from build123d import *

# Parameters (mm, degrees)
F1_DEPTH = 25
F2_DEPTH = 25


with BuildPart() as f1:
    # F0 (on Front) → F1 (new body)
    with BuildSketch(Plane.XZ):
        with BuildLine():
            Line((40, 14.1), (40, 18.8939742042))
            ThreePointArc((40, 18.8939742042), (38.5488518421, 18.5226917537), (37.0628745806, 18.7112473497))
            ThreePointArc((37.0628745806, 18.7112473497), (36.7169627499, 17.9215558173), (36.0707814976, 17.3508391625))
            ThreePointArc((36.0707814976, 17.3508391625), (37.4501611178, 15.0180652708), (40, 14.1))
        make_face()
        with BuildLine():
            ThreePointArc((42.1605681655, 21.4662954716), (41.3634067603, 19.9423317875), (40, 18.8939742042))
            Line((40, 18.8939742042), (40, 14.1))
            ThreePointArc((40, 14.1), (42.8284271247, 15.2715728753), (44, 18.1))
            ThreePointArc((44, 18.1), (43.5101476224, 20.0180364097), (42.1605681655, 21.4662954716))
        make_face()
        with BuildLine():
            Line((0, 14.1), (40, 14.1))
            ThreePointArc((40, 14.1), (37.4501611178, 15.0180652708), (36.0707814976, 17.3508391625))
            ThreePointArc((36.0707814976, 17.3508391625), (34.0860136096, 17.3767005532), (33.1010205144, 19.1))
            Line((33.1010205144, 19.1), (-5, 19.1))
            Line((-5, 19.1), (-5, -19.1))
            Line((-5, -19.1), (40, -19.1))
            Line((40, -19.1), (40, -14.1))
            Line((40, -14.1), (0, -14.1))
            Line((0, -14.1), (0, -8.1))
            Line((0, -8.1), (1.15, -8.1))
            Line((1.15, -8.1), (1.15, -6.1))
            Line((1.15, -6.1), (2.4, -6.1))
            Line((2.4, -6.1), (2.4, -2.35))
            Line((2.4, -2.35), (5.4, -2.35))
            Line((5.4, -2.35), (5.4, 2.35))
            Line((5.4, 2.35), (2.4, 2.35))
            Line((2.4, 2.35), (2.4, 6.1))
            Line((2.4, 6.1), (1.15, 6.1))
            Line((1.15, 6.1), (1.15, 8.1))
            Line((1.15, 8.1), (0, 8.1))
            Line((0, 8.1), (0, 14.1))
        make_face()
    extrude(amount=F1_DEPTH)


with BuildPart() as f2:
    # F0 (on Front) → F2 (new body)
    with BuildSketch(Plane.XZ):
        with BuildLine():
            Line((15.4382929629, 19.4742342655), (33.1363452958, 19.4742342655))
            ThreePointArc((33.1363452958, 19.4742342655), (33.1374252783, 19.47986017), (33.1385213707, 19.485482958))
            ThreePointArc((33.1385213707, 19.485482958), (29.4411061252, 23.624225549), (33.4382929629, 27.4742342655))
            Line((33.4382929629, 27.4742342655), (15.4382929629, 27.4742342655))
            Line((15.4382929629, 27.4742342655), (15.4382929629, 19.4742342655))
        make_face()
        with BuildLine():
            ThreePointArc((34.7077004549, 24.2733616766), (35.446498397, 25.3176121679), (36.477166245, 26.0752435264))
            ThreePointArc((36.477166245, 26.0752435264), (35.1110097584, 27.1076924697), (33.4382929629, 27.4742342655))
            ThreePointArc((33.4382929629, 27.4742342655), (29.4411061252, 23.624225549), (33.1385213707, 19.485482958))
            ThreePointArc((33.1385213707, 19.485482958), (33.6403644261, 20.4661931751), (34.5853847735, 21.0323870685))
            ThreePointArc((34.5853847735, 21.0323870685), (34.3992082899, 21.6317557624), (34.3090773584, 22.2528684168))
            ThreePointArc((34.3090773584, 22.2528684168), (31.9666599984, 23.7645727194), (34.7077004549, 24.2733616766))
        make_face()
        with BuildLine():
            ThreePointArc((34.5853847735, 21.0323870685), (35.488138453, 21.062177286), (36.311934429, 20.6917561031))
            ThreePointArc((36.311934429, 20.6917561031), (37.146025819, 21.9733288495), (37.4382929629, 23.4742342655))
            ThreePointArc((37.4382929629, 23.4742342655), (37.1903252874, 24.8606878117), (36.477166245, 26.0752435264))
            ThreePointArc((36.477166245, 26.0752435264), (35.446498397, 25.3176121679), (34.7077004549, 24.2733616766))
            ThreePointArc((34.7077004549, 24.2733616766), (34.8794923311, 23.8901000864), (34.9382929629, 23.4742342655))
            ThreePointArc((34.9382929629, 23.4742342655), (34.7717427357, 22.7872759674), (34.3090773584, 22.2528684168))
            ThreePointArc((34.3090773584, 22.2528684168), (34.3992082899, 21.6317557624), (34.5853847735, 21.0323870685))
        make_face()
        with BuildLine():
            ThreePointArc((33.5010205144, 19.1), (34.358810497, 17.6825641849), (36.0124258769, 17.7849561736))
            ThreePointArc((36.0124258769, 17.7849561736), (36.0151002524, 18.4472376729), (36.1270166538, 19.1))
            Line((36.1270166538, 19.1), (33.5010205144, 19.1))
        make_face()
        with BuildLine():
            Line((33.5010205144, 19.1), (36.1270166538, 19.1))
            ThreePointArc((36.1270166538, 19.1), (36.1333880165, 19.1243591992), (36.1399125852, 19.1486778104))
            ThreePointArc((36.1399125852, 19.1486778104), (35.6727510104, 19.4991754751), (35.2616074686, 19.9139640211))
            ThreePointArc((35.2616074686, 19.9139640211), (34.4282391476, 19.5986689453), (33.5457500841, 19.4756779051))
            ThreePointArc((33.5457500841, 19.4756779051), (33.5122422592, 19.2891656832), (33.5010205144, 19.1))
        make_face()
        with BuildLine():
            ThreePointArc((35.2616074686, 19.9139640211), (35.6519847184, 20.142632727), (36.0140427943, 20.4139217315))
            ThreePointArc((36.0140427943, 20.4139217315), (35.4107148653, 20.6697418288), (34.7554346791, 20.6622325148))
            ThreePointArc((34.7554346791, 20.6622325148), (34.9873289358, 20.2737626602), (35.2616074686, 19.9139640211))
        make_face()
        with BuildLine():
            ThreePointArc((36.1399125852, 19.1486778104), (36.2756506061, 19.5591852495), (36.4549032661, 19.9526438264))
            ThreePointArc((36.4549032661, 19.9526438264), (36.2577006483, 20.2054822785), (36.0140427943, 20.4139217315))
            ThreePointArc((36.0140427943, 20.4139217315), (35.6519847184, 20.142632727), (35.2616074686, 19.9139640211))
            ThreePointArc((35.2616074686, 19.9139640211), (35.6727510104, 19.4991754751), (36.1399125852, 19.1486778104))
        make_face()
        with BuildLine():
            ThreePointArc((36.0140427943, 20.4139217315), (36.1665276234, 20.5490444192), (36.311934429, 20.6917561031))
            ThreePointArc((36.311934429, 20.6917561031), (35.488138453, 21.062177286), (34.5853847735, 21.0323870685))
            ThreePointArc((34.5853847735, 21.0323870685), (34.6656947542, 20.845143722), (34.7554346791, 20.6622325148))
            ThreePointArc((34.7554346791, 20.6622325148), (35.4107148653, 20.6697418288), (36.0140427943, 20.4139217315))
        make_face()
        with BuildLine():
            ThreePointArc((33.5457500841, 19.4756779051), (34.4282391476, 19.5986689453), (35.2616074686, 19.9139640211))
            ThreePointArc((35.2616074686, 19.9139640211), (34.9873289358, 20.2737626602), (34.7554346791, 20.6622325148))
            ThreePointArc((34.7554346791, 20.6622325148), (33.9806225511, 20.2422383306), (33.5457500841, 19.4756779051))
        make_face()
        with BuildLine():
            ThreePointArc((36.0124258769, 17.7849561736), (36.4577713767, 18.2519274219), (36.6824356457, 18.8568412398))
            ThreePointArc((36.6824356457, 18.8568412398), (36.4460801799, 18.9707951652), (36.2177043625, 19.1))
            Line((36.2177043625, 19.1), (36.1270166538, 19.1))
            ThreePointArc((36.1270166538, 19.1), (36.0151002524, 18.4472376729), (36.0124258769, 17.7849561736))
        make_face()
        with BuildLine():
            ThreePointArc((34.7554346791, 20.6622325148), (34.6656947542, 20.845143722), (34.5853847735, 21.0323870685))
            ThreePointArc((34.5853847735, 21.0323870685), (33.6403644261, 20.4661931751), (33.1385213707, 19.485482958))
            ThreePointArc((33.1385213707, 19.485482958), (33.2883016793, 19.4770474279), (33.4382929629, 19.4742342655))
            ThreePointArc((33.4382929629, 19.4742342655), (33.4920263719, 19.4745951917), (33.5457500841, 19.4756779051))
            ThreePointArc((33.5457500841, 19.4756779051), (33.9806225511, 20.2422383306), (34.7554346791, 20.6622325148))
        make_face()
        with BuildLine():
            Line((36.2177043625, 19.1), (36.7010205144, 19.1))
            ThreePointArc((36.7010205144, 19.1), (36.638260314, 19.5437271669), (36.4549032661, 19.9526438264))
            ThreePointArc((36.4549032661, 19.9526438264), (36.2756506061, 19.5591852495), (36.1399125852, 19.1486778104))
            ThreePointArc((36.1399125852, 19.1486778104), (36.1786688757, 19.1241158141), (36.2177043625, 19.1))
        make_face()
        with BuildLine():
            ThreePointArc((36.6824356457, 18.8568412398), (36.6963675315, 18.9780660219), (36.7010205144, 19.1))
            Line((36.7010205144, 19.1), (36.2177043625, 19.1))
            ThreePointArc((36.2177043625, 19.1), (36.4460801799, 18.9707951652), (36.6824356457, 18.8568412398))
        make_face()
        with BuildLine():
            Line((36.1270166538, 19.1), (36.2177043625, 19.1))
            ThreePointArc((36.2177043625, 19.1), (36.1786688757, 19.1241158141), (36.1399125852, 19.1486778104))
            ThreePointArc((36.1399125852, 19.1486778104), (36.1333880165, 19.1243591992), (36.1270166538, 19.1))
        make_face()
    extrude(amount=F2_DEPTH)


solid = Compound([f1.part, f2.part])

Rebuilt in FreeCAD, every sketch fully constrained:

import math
import FreeCAD as App
import Part
import Sketcher

doc = App.newDocument("Part")
params = doc.addObject("Spreadsheet::Sheet", "Params")
for row, (alias, value) in enumerate([
    ("sketch1_radius", "4 mm"),
    ("sketch1_radius2", "2 mm"),
    ("sketch1_width", "45 mm"),
    ("sketch1_width2", "40 mm"),
    ("sketch1_width3", "3 mm"),
    ("pad1_length", "25 mm"),
    ("sketch2_radius", "4 mm"),
    ("sketch2_radius2", "2 mm"),
    ("sketch2_radius3", "1.6 mm"),
    ("sketch2_radius4", "1.5 mm"),
    ("sketch2_width", "18 mm"),
    ("pad2_length", "25 mm"),
], start=1):
    params.set(f"A{row}", alias)
    params.set(f"B{row}", "=" + value)
    params.setAlias(f"B{row}", alias)

body = doc.addObject("PartDesign::Body", "Body")

# Sketch on XZ plane
sketch1 = doc.addObject("Sketcher::SketchObject", "Sketch")
body.addObject(sketch1)
sketch1.AttachmentSupport = (doc.XZ_Plane, [""])
sketch1.MapMode = "FlatFace"
sketch1.addGeometry(Part.ArcOfCircle(Part.Circle(App.Vector(38.300481, 22.514973, 0), App.Vector(0, 0, 1), 4), math.radians(-108.023168), math.radians(-64.856944)), False)
sketch1.addGeometry(Part.ArcOfCircle(Part.Circle(App.Vector(35.101021, 19.1, 0), App.Vector(0, 0, 1), 2), math.radians(-60.995357), math.radians(-11.208293)), False)
sketch1.addGeometry(Part.ArcOfCircle(Part.Circle(App.Vector(35.101021, 19.1, 0), App.Vector(0, 0, 1), 2), math.radians(180), math.radians(299.004643)), False)
sketch1.addGeometry(Part.LineSegment(App.Vector(33.101021, 19.1, 0), App.Vector(-5, 19.1, 0)), False)
sketch1.addGeometry(Part.LineSegment(App.Vector(-5, 19.1, 0), App.Vector(-5, -19.1, 0)), False)
sketch1.addGeometry(Part.LineSegment(App.Vector(-5, -19.1, 0), App.Vector(40, -19.1, 0)), False)
sketch1.addGeometry(Part.LineSegment(App.Vector(40, -19.1, 0), App.Vector(40, -14.1, 0)), False)
sketch1.addGeometry(Part.LineSegment(App.Vector(40, -14.1, 0), App.Vector(0, -14.1, 0)), False)
sketch1.addGeometry(Part.LineSegment(App.Vector(0, -14.1, 0), App.Vector(0, -8.1, 0)), False)
sketch1.addGeometry(Part.LineSegment(App.Vector(0, -8.1, 0), App.Vector(1.15, -8.1, 0)), False)
sketch1.addGeometry(Part.LineSegment(App.Vector(1.15, -8.1, 0), App.Vector(1.15, -6.1, 0)), False)
sketch1.addGeometry(Part.LineSegment(App.Vector(1.15, -6.1, 0), App.Vector(2.4, -6.1, 0)), False)
sketch1.addGeometry(Part.LineSegment(App.Vector(2.4, -6.1, 0), App.Vector(2.4, -2.35, 0)), False)
sketch1.addGeometry(Part.LineSegment(App.Vector(2.4, -2.35, 0), App.Vector(5.4, -2.35, 0)), False)
sketch1.addGeometry(Part.LineSegment(App.Vector(5.4, -2.35, 0), App.Vector(5.4, 2.35, 0)), False)
sketch1.addGeometry(Part.LineSegment(App.Vector(5.4, 2.35, 0), App.Vector(2.4, 2.35, 0)), False)
sketch1.addGeometry(Part.LineSegment(App.Vector(2.4, 2.35, 0), App.Vector(2.4, 6.1, 0)), False)
sketch1.addGeometry(Part.LineSegment(App.Vector(2.4, 6.1, 0), App.Vector(1.15, 6.1, 0)), False)
sketch1.addGeometry(Part.LineSegment(App.Vector(1.15, 6.1, 0), App.Vector(1.15, 8.1, 0)), False)
sketch1.addGeometry(Part.LineSegment(App.Vector(1.15, 8.1, 0), App.Vector(0, 8.1, 0)), False)
sketch1.addGeometry(Part.LineSegment(App.Vector(0, 8.1, 0), App.Vector(0, 14.1, 0)), False)
sketch1.addGeometry(Part.LineSegment(App.Vector(0, 14.1, 0), App.Vector(40, 14.1, 0)), False)
sketch1.addGeometry(Part.ArcOfCircle(Part.Circle(App.Vector(40, 18.1, 0), App.Vector(0, 0, 1), 4), math.radians(-90), math.radians(0)), False)
sketch1.addGeometry(Part.ArcOfCircle(Part.Circle(App.Vector(40, 18.1, 0), App.Vector(0, 0, 1), 4), math.radians(0), math.radians(57.306691)), False)
sketch1.addGeometry(Part.ArcOfCircle(Part.Circle(App.Vector(38.300481, 22.514973, 0), App.Vector(0, 0, 1), 4), math.radians(-64.856944), math.radians(-15.198829)), False)
sketch1.addConstraint(Sketcher.Constraint("Coincident", 0, 1, 1, 2))
sketch1.addConstraint(Sketcher.Constraint("Tangent", 1, 1, 2, 2))
sketch1.addConstraint(Sketcher.Constraint("Coincident", 2, 1, 3, 1))
sketch1.addConstraint(Sketcher.Constraint("Coincident", 3, 2, 4, 1))
sketch1.addConstraint(Sketcher.Constraint("Coincident", 4, 2, 5, 1))
sketch1.addConstraint(Sketcher.Constraint("Coincident", 5, 2, 6, 1))
sketch1.addConstraint(Sketcher.Constraint("Coincident", 6, 2, 7, 1))
sketch1.addConstraint(Sketcher.Constraint("Coincident", 7, 2, 8, 1))
sketch1.addConstraint(Sketcher.Constraint("Coincident", 8, 2, 9, 1))
sketch1.addConstraint(Sketcher.Constraint("Coincident", 9, 2, 10, 1))
sketch1.addConstraint(Sketcher.Constraint("Coincident", 10, 2, 11, 1))
sketch1.addConstraint(Sketcher.Constraint("Coincident", 11, 2, 12, 1))
sketch1.addConstraint(Sketcher.Constraint("Coincident", 12, 2, 13, 1))
sketch1.addConstraint(Sketcher.Constraint("Coincident", 13, 2, 14, 1))
sketch1.addConstraint(Sketcher.Constraint("Coincident", 14, 2, 15, 1))
sketch1.addConstraint(Sketcher.Constraint("Coincident", 15, 2, 16, 1))
sketch1.addConstraint(Sketcher.Constraint("Coincident", 16, 2, 17, 1))
sketch1.addConstraint(Sketcher.Constraint("Coincident", 17, 2, 18, 1))
sketch1.addConstraint(Sketcher.Constraint("Coincident", 18, 2, 19, 1))
sketch1.addConstraint(Sketcher.Constraint("Coincident", 19, 2, 20, 1))
sketch1.addConstraint(Sketcher.Constraint("Coincident", 20, 2, 21, 1))
sketch1.addConstraint(Sketcher.Constraint("Tangent", 21, 2, 22, 1))
sketch1.addConstraint(Sketcher.Constraint("Tangent", 22, 2, 23, 1))
sketch1.addConstraint(Sketcher.Constraint("Coincident", 23, 2, 24, 2))
sketch1.addConstraint(Sketcher.Constraint("Tangent", 24, 1, 0, 2))
sketch1.addConstraint(Sketcher.Constraint("Horizontal", 3))
sketch1.addConstraint(Sketcher.Constraint("Vertical", 4))
sketch1.addConstraint(Sketcher.Constraint("Horizontal", 5))
sketch1.addConstraint(Sketcher.Constraint("Vertical", 6))
sketch1.addConstraint(Sketcher.Constraint("Horizontal", 7))
sketch1.addConstraint(Sketcher.Constraint("Vertical", 8))
sketch1.addConstraint(Sketcher.Constraint("Horizontal", 9))
sketch1.addConstraint(Sketcher.Constraint("Vertical", 10))
sketch1.addConstraint(Sketcher.Constraint("Horizontal", 11))
sketch1.addConstraint(Sketcher.Constraint("Vertical", 12))
sketch1.addConstraint(Sketcher.Constraint("Horizontal", 13))
sketch1.addConstraint(Sketcher.Constraint("Vertical", 14))
sketch1.addConstraint(Sketcher.Constraint("Horizontal", 15))
sketch1.addConstraint(Sketcher.Constraint("Vertical", 16))
sketch1.addConstraint(Sketcher.Constraint("Horizontal", 17))
sketch1.addConstraint(Sketcher.Constraint("Vertical", 18))
sketch1.addConstraint(Sketcher.Constraint("Horizontal", 19))
sketch1.addConstraint(Sketcher.Constraint("Vertical", 20))
sketch1.addConstraint(Sketcher.Constraint("Horizontal", 21))
sketch1.addConstraint(Sketcher.Constraint("Equal", 1, 2))
sketch1.addConstraint(Sketcher.Constraint("Equal", 0, 22))
sketch1.addConstraint(Sketcher.Constraint("Equal", 22, 23))
sketch1.addConstraint(Sketcher.Constraint("Equal", 23, 24))
sketch1.addConstraint(Sketcher.Constraint("Symmetric", 8, 2, 19, 2, -1, 1))
sketch1.addConstraint(Sketcher.Constraint("Symmetric", 12, 2, 15, 2, -1))
sketch1.addConstraint(Sketcher.Constraint("Symmetric", 10, 2, 17, 2, -1))
sketch1.addConstraint(Sketcher.Constraint("Symmetric", 7, 2, 20, 2, -1))
sketch1.addConstraint(Sketcher.Constraint("Horizontal", 1, 3, 2, 1))
sketch1.addConstraint(Sketcher.Constraint("Horizontal", 23, 3, 22, 2))
sketch1.addConstraint(Sketcher.Constraint("Vertical", 23, 3, 5, 2))
sketch1.addConstraint(Sketcher.Constraint("Vertical", 21, 2, 24, 1))
sketch1.addConstraint(Sketcher.Constraint("Radius", 0, 4.0))
sketch1.addConstraint(Sketcher.Constraint("Radius", 1, 2.0))
sketch1.addConstraint(Sketcher.Constraint("DistanceX", 5, 1, 5, 2, 45.0))
sketch1.addConstraint(Sketcher.Constraint("DistanceX", 7, 2, 7, 1, 40.0))
sketch1.addConstraint(Sketcher.Constraint("DistanceX", 13, 1, 13, 2, 3.0))
sketch1.addConstraint(Sketcher.Constraint("DistanceY", 6, 1, 6, 2, 5.0))
sketch1.addConstraint(Sketcher.Constraint("DistanceY", 8, 1, 8, 2, 6.0))
sketch1.addConstraint(Sketcher.Constraint("DistanceY", 10, 1, 10, 2, 2.0))
sketch1.addConstraint(Sketcher.Constraint("DistanceY", 4, 2, 4, 1, 38.2))
sketch1.addConstraint(Sketcher.Constraint("DistanceY", 14, 1, 14, 2, 4.7))
sketch1.addConstraint(Sketcher.Constraint("DistanceY", 22, 3, 1, 3, 1.0))
sketch1.addConstraint(Sketcher.Constraint("DistanceX", 9, 1, 9, 2, 1.15))
sketch1.addConstraint(Sketcher.Constraint("DistanceX", 11, 1, 11, 2, 1.25))
sketch1.addConstraint(Sketcher.Constraint("DistanceY", 24, 1, 0, 3, 3.620999))
sketch1.addConstraint(Sketcher.Constraint("DistanceX", 3, 2, 3, 1, 38.101021))
sketch1.addConstraint(Sketcher.Constraint("DistanceX", -1, 1, 1, 1, 36.070781))
sketch1.addConstraint(Sketcher.Constraint("DistanceX", -1, 1, 23, 2, 42.160568))
sketch1.setExpression("Constraints[56]", "Params.sketch1_radius")
sketch1.setExpression("Constraints[57]", "Params.sketch1_radius2")
sketch1.setExpression("Constraints[58]", "Params.sketch1_width")
sketch1.setExpression("Constraints[59]", "Params.sketch1_width2")
sketch1.setExpression("Constraints[60]", "Params.sketch1_width3")
pad1 = doc.addObject("PartDesign::Pad", "Pad")
body.addObject(pad1)
pad1.Profile = sketch1
pad1.setExpression("Length", "Params.pad1_length")
body2 = doc.addObject("PartDesign::Body", "Body001")

# Sketch on XZ plane
sketch2 = doc.addObject("Sketcher::SketchObject", "Sketch001")
body2.addObject(sketch2)
sketch2.AttachmentSupport = (doc.getObject("XZ_Plane001"), [""])
sketch2.MapMode = "FlatFace"
sketch2.addGeometry(Part.ArcOfCircle(Part.Circle(App.Vector(35.101021, 19.1, 0), App.Vector(0, 0, 1), 1.6), math.radians(-55.275686), math.radians(-8.741353)), False)
sketch2.addGeometry(Part.ArcOfCircle(Part.Circle(App.Vector(35.101021, 19.1, 0), App.Vector(0, 0, 1), 1.6), math.radians(-8.741353), math.radians(0)), False)
sketch2.addGeometry(Part.ArcOfCircle(Part.Circle(App.Vector(35.101021, 19.1, 0), App.Vector(0, 0, 1), 1.6), math.radians(0), math.radians(32.201768)), False)
sketch2.addGeometry(Part.ArcOfCircle(Part.Circle(App.Vector(35.101021, 19.1, 0), App.Vector(0, 0, 1), 1.6), math.radians(32.201768), math.radians(55.205208)), False)
sketch2.addGeometry(Part.ArcOfCircle(Part.Circle(App.Vector(33.438293, 23.474234, 0), App.Vector(0, 0, 1), 4), math.radians(-49.913944), math.radians(-44.076607)), False)
sketch2.addGeometry(Part.ArcOfCircle(Part.Circle(App.Vector(33.438293, 23.474234, 0), App.Vector(0, 0, 1), 4), math.radians(-44.076607), math.radians(0)), False)
sketch2.addGeometry(Part.ArcOfCircle(Part.Circle(App.Vector(33.438293, 23.474234, 0), App.Vector(0, 0, 1), 4), math.radians(0), math.radians(40.560628)), False)
sketch2.addGeometry(Part.ArcOfCircle(Part.Circle(App.Vector(33.438293, 23.474234, 0), App.Vector(0, 0, 1), 4), math.radians(40.560628), math.radians(90)), False)
sketch2.addGeometry(Part.LineSegment(App.Vector(33.438293, 27.474234, 0), App.Vector(15.438293, 27.474234, 0)), False)
sketch2.addGeometry(Part.LineSegment(App.Vector(15.438293, 27.474234, 0), App.Vector(15.438293, 19.474234, 0)), False)
sketch2.addGeometry(Part.LineSegment(App.Vector(15.438293, 19.474234, 0), App.Vector(33.136345, 19.474234, 0)), False)
sketch2.addGeometry(Part.ArcOfCircle(Part.Circle(App.Vector(35.101021, 19.1, 0), App.Vector(0, 0, 1), 2), math.radians(168.887183), math.radians(169.215409)), False)
sketch2.addGeometry(Part.ArcOfCircle(Part.Circle(App.Vector(33.438293, 23.474234, 0), App.Vector(0, 0, 1), 4), math.radians(-94.297941), math.radians(-90)), False)
sketch2.addGeometry(Part.ArcOfCircle(Part.Circle(App.Vector(33.438293, 23.474235, 0), App.Vector(0, 0, 1), 4), math.radians(-90), math.radians(-88.460605)), False)
sketch2.addGeometry(Part.ArcOfCircle(Part.Circle(App.Vector(35.101021, 19.1, 0), App.Vector(0, 0, 1), 1.6), math.radians(166.420243), math.radians(180)), False)
sketch2.addGeometry(Part.ArcOfCircle(Part.Circle(App.Vector(35.101021, 19.1, 0), App.Vector(0, 0, 1), 1.6), math.radians(180), math.radians(304.724314)), False)
sketch2.addGeometry(Part.ArcOfCircle(Part.Circle(App.Vector(33.438293, 23.474234, 0), App.Vector(0, 0, 1), 1.5), math.radians(32.191559), math.radians(305.487331)), False)
sketch2.addGeometry(Part.ArcOfCircle(Part.Circle(App.Vector(33.438293, 23.474234, 0), App.Vector(0, 0, 1), 1.5), math.radians(0), math.radians(32.191559)), False)
sketch2.addGeometry(Part.ArcOfCircle(Part.Circle(App.Vector(33.438293, 23.474234, 0), App.Vector(0, 0, 1), 1.5), math.radians(-54.512669), math.radians(0)), False)
sketch2.addConstraint(Sketcher.Constraint("Tangent", 0, 2, 1, 1))
sketch2.addConstraint(Sketcher.Constraint("Tangent", 1, 2, 2, 1))
sketch2.addConstraint(Sketcher.Constraint("Tangent", 2, 2, 3, 1))
sketch2.addConstraint(Sketcher.Constraint("Coincident", 3, 2, 4, 1))
sketch2.addConstraint(Sketcher.Constraint("Tangent", 4, 2, 5, 1))
sketch2.addConstraint(Sketcher.Constraint("Tangent", 5, 2, 6, 1))
sketch2.addConstraint(Sketcher.Constraint("Tangent", 6, 2, 7, 1))
sketch2.addConstraint(Sketcher.Constraint("Tangent", 7, 2, 8, 1))
sketch2.addConstraint(Sketcher.Constraint("Coincident", 8, 2, 9, 1))
sketch2.addConstraint(Sketcher.Constraint("Coincident", 9, 2, 10, 1))
sketch2.addConstraint(Sketcher.Constraint("Coincident", 10, 2, 11, 2))
sketch2.addConstraint(Sketcher.Constraint("Coincident", 11, 1, 12, 1))
sketch2.addConstraint(Sketcher.Constraint("Tangent", 12, 2, 13, 1))
sketch2.addConstraint(Sketcher.Constraint("Coincident", 13, 2, 14, 1))
sketch2.addConstraint(Sketcher.Constraint("Tangent", 14, 2, 15, 1))
sketch2.addConstraint(Sketcher.Constraint("Tangent", 15, 2, 0, 1))
sketch2.addConstraint(Sketcher.Constraint("Tangent", 16, 1, 17, 2))
sketch2.addConstraint(Sketcher.Constraint("Tangent", 17, 1, 18, 2))
sketch2.addConstraint(Sketcher.Constraint("Tangent", 18, 1, 16, 2))
sketch2.addConstraint(Sketcher.Constraint("Horizontal", 8))
sketch2.addConstraint(Sketcher.Constraint("Vertical", 9))
sketch2.addConstraint(Sketcher.Constraint("Horizontal", 10))
sketch2.addConstraint(Sketcher.Constraint("Coincident", 2, 3, 0, 3))
sketch2.addConstraint(Sketcher.Constraint("Coincident", 6, 3, 4, 3))
sketch2.addConstraint(Sketcher.Constraint("Coincident", 11, 3, 0, 3))
sketch2.addConstraint(Sketcher.Constraint("Coincident", 12, 3, 4, 3))
sketch2.addConstraint(Sketcher.Constraint("Coincident", 14, 3, 0, 3))
sketch2.addConstraint(Sketcher.Constraint("Coincident", 16, 3, 4, 3))
sketch2.addConstraint(Sketcher.Constraint("Equal", 2, 3))
sketch2.addConstraint(Sketcher.Constraint("Equal", 6, 7))
sketch2.addConstraint(Sketcher.Constraint("Equal", 7, 12))
sketch2.addConstraint(Sketcher.Constraint("Equal", 12, 13))
sketch2.addConstraint(Sketcher.Constraint("Horizontal", 15, 3, 1, 2))
sketch2.addConstraint(Sketcher.Constraint("Horizontal", 18, 3, 5, 2))
sketch2.addConstraint(Sketcher.Constraint("Horizontal", 10, 2, 12, 2))
sketch2.addConstraint(Sketcher.Constraint("Horizontal", 1, 2, 14, 2))
sketch2.addConstraint(Sketcher.Constraint("Horizontal", 5, 2, 17, 1))
sketch2.addConstraint(Sketcher.Constraint("Vertical", 7, 2, 12, 2))
sketch2.addConstraint(Sketcher.Constraint("Radius", 4, 4.0))
sketch2.addConstraint(Sketcher.Constraint("Radius", 11, 2.0))
sketch2.addConstraint(Sketcher.Constraint("Radius", 0, 1.6))
sketch2.addConstraint(Sketcher.Constraint("Radius", 16, 1.5))
sketch2.addConstraint(Sketcher.Constraint("DistanceX", 8, 2, 8, 1, 18.0))
sketch2.addConstraint(Sketcher.Constraint("DistanceY", -1, 1, 0, 3, 19.1))
sketch2.addConstraint(Sketcher.Constraint("DistanceX", -1, 1, 16, 1, 34.7077))
sketch2.addConstraint(Sketcher.Constraint("DistanceX", 4, 2, 0, 2, 0.370501))
sketch2.addConstraint(Sketcher.Constraint("DistanceX", 11, 1, 1, 3, 1.962499))
sketch2.addConstraint(Sketcher.Constraint("DistanceX", 10, 1, 10, 2, 17.698052))
sketch2.addConstraint(Sketcher.Constraint("DistanceX", -1, 1, 0, 3, 35.101021))
sketch2.addConstraint(Sketcher.Constraint("DistanceY", -1, 1, 0, 2, 18.856841))
sketch2.addConstraint(Sketcher.Constraint("DistanceY", -1, 1, 18, 1, 22.252868))
sketch2.addConstraint(Sketcher.Constraint("DistanceX", 3, 2, 2, 2, 0.44086))
sketch2.addConstraint(Sketcher.Constraint("DistanceY", 5, 2, 6, 2, 2.601009))
sketch2.addConstraint(Sketcher.Constraint("DistanceX", 15, 2, 0, 2, 0.67001))
sketch2.setExpression("Constraints[38]", "Params.sketch2_radius")
sketch2.setExpression("Constraints[39]", "Params.sketch2_radius2")
sketch2.setExpression("Constraints[40]", "Params.sketch2_radius3")
sketch2.setExpression("Constraints[41]", "Params.sketch2_radius4")
sketch2.setExpression("Constraints[42]", "Params.sketch2_width")
pad2 = doc.addObject("PartDesign::Pad", "Pad001")
body2.addObject(pad2)
pad2.Profile = sketch2
pad2.setExpression("Length", "Params.pad2_length")

doc.recompute()
